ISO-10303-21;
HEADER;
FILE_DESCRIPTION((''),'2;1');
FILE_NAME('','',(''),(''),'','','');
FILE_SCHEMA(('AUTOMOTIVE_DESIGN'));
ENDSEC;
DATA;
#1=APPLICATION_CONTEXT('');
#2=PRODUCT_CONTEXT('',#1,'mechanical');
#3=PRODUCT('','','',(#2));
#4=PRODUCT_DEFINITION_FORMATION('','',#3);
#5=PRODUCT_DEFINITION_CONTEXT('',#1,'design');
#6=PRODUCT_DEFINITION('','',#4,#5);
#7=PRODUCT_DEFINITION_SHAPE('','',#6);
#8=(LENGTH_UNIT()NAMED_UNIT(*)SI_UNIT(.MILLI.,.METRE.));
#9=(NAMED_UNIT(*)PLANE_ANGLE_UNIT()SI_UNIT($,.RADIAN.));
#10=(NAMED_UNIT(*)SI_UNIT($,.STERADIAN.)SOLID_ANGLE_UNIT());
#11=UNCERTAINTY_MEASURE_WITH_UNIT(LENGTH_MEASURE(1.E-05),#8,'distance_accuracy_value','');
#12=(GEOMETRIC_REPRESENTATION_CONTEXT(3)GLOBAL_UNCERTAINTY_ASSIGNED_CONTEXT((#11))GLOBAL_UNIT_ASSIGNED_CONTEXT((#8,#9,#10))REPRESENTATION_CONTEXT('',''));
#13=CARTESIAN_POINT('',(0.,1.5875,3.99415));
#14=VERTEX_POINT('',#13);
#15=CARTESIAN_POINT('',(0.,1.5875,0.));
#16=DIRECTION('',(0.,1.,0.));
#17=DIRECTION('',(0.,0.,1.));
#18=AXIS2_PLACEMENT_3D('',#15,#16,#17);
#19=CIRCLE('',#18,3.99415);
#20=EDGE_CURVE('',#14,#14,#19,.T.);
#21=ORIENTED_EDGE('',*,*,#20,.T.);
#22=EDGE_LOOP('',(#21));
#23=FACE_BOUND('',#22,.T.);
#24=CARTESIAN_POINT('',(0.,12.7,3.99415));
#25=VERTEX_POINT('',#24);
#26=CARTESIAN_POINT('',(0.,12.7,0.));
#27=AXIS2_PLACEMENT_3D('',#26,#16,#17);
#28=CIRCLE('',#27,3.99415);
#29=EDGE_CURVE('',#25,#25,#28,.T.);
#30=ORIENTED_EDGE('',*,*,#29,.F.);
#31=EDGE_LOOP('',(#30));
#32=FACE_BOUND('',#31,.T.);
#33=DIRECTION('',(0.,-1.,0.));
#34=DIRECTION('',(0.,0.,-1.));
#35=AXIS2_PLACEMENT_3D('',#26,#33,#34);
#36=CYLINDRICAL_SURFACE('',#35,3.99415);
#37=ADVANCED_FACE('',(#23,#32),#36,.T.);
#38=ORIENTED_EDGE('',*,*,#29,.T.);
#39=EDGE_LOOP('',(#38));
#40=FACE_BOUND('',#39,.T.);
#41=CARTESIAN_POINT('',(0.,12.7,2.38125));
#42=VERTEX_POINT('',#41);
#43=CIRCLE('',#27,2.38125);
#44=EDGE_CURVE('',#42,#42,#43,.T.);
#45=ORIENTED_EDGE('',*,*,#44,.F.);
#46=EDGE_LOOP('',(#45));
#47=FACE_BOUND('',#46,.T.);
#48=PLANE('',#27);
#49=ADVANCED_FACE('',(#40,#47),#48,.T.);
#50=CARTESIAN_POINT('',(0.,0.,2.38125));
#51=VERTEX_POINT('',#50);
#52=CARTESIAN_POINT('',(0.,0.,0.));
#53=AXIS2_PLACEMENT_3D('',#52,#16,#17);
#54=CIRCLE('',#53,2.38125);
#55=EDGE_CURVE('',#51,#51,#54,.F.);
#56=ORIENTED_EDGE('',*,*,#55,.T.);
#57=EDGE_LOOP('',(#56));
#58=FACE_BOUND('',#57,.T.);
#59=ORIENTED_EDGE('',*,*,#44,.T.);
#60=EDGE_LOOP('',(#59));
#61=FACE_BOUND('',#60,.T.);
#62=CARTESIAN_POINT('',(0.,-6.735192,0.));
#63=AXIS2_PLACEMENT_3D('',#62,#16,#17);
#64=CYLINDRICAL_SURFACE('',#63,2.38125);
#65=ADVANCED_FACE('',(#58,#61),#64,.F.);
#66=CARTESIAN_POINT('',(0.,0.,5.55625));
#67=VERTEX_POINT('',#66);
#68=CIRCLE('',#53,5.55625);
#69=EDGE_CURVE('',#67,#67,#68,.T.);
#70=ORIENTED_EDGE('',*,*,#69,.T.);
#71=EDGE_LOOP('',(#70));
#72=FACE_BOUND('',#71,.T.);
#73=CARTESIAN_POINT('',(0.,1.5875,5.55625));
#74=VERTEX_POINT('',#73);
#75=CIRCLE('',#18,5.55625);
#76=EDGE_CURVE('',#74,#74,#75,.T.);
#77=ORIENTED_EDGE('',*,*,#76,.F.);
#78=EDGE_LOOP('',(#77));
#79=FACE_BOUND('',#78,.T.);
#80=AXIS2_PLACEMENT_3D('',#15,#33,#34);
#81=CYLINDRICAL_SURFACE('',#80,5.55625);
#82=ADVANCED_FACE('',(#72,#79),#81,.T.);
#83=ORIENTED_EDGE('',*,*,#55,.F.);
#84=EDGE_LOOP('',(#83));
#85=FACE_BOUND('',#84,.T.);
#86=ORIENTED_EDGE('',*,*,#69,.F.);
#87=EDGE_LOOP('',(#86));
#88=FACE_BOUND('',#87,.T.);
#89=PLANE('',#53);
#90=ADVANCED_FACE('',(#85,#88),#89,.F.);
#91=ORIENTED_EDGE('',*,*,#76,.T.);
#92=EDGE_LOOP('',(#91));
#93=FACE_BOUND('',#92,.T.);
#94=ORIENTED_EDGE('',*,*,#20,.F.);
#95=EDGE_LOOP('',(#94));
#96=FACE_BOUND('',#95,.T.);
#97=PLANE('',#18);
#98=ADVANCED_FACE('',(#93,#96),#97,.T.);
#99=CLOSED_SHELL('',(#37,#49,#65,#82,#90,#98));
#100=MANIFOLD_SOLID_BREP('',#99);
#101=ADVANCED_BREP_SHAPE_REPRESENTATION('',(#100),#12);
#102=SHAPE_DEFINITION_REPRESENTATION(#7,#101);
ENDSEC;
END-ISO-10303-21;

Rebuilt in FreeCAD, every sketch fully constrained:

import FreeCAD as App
import Part
import Sketcher
from FreeCAD import Vector
Q = App.Units.Quantity

doc = App.newDocument("Part")
params = doc.addObject("Spreadsheet::Sheet", "Params")
for row, (alias, value) in enumerate([
    ("sketch1_diameter", "0.4375 in"),
    ("pad1_length", "0.0625 in"),
    ("pad2_length", "0.4375 in"),
    ("sketch3_diameter", "0.1875 in"),
    ("pocket1_length", "0.5 in"),
], start=1):
    params.set(f"A{row}", alias)
    params.set(f"B{row}", "=" + value)
    params.setAlias(f"B{row}", alias)

body = doc.addObject("PartDesign::Body", "Body")

sketch1 = doc.addObject("Sketcher::SketchObject", "Sketch")
body.addObject(sketch1)
sketch1.AttachmentSupport = (doc.XZ_Plane, [""])
sketch1.MapMode = "FlatFace"
sketch1.addGeometry(Part.Circle(Vector(0, 0, 0), Vector(0, 0, 1), 6), False)
sketch1.addConstraint(Sketcher.Constraint("Coincident", 0, 3, -1, 1))
sketch1.addConstraint(Sketcher.Constraint("Diameter", 0, Q("0.4375 in")))
sketch1.setExpression("Constraints[1]", "Params.sketch1_diameter")
pad1 = doc.addObject("PartDesign::Pad", "Pad")
body.addObject(pad1)
pad1.Profile = sketch1
pad1.setExpression("Length", "Params.pad1_length")
pad1.Reversed = True

sketch2 = doc.addObject("Sketcher::SketchObject", "Sketch001")
body.addObject(sketch2)
sketch2.AttachmentSupport = (doc.XZ_Plane, [""])
sketch2.MapMode = "FlatFace"
sketch2.AttachmentOffset = App.Placement(Vector(0, 0, -0.0625 * 25.4), App.Rotation())
sketch2.addGeometry(Part.Circle(Vector(0, 0, 0), Vector(0, 0, 1), 4), False)
sketch2.addConstraint(Sketcher.Constraint("Coincident", 0, 3, -1, 1))
sketch2.addConstraint(Sketcher.Constraint("Diameter", 0, Q("0.3145 in")))
pad2 = doc.addObject("PartDesign::Pad", "Pad001")
body.addObject(pad2)
pad2.Profile = sketch2
pad2.setExpression("Length", "Params.pad2_length")
pad2.Reversed = True

sketch3 = doc.addObject("Sketcher::SketchObject", "Sketch002")
body.addObject(sketch3)
sketch3.AttachmentSupport = (doc.XZ_Plane, [""])
sketch3.MapMode = "FlatFace"
sketch3.AttachmentOffset = App.Placement(Vector(0, 0, -0.5 * 25.4), App.Rotation())
sketch3.addGeometry(Part.Circle(Vector(0, 0, 0), Vector(0, 0, 1), 2.4), False)
sketch3.addConstraint(Sketcher.Constraint("Coincident", 0, 3, -1, 1))
sketch3.addConstraint(Sketcher.Constraint("Diameter", 0, Q("0.1875 in")))
sketch3.setExpression("Constraints[1]", "Params.sketch3_diameter")
pocket1 = doc.addObject("PartDesign::Pocket", "Pocket")
body.addObject(pocket1)
pocket1.Profile = sketch3
pocket1.setExpression("Length", "Params.pocket1_length")
pocket1.Reversed = True

doc.recompute()
